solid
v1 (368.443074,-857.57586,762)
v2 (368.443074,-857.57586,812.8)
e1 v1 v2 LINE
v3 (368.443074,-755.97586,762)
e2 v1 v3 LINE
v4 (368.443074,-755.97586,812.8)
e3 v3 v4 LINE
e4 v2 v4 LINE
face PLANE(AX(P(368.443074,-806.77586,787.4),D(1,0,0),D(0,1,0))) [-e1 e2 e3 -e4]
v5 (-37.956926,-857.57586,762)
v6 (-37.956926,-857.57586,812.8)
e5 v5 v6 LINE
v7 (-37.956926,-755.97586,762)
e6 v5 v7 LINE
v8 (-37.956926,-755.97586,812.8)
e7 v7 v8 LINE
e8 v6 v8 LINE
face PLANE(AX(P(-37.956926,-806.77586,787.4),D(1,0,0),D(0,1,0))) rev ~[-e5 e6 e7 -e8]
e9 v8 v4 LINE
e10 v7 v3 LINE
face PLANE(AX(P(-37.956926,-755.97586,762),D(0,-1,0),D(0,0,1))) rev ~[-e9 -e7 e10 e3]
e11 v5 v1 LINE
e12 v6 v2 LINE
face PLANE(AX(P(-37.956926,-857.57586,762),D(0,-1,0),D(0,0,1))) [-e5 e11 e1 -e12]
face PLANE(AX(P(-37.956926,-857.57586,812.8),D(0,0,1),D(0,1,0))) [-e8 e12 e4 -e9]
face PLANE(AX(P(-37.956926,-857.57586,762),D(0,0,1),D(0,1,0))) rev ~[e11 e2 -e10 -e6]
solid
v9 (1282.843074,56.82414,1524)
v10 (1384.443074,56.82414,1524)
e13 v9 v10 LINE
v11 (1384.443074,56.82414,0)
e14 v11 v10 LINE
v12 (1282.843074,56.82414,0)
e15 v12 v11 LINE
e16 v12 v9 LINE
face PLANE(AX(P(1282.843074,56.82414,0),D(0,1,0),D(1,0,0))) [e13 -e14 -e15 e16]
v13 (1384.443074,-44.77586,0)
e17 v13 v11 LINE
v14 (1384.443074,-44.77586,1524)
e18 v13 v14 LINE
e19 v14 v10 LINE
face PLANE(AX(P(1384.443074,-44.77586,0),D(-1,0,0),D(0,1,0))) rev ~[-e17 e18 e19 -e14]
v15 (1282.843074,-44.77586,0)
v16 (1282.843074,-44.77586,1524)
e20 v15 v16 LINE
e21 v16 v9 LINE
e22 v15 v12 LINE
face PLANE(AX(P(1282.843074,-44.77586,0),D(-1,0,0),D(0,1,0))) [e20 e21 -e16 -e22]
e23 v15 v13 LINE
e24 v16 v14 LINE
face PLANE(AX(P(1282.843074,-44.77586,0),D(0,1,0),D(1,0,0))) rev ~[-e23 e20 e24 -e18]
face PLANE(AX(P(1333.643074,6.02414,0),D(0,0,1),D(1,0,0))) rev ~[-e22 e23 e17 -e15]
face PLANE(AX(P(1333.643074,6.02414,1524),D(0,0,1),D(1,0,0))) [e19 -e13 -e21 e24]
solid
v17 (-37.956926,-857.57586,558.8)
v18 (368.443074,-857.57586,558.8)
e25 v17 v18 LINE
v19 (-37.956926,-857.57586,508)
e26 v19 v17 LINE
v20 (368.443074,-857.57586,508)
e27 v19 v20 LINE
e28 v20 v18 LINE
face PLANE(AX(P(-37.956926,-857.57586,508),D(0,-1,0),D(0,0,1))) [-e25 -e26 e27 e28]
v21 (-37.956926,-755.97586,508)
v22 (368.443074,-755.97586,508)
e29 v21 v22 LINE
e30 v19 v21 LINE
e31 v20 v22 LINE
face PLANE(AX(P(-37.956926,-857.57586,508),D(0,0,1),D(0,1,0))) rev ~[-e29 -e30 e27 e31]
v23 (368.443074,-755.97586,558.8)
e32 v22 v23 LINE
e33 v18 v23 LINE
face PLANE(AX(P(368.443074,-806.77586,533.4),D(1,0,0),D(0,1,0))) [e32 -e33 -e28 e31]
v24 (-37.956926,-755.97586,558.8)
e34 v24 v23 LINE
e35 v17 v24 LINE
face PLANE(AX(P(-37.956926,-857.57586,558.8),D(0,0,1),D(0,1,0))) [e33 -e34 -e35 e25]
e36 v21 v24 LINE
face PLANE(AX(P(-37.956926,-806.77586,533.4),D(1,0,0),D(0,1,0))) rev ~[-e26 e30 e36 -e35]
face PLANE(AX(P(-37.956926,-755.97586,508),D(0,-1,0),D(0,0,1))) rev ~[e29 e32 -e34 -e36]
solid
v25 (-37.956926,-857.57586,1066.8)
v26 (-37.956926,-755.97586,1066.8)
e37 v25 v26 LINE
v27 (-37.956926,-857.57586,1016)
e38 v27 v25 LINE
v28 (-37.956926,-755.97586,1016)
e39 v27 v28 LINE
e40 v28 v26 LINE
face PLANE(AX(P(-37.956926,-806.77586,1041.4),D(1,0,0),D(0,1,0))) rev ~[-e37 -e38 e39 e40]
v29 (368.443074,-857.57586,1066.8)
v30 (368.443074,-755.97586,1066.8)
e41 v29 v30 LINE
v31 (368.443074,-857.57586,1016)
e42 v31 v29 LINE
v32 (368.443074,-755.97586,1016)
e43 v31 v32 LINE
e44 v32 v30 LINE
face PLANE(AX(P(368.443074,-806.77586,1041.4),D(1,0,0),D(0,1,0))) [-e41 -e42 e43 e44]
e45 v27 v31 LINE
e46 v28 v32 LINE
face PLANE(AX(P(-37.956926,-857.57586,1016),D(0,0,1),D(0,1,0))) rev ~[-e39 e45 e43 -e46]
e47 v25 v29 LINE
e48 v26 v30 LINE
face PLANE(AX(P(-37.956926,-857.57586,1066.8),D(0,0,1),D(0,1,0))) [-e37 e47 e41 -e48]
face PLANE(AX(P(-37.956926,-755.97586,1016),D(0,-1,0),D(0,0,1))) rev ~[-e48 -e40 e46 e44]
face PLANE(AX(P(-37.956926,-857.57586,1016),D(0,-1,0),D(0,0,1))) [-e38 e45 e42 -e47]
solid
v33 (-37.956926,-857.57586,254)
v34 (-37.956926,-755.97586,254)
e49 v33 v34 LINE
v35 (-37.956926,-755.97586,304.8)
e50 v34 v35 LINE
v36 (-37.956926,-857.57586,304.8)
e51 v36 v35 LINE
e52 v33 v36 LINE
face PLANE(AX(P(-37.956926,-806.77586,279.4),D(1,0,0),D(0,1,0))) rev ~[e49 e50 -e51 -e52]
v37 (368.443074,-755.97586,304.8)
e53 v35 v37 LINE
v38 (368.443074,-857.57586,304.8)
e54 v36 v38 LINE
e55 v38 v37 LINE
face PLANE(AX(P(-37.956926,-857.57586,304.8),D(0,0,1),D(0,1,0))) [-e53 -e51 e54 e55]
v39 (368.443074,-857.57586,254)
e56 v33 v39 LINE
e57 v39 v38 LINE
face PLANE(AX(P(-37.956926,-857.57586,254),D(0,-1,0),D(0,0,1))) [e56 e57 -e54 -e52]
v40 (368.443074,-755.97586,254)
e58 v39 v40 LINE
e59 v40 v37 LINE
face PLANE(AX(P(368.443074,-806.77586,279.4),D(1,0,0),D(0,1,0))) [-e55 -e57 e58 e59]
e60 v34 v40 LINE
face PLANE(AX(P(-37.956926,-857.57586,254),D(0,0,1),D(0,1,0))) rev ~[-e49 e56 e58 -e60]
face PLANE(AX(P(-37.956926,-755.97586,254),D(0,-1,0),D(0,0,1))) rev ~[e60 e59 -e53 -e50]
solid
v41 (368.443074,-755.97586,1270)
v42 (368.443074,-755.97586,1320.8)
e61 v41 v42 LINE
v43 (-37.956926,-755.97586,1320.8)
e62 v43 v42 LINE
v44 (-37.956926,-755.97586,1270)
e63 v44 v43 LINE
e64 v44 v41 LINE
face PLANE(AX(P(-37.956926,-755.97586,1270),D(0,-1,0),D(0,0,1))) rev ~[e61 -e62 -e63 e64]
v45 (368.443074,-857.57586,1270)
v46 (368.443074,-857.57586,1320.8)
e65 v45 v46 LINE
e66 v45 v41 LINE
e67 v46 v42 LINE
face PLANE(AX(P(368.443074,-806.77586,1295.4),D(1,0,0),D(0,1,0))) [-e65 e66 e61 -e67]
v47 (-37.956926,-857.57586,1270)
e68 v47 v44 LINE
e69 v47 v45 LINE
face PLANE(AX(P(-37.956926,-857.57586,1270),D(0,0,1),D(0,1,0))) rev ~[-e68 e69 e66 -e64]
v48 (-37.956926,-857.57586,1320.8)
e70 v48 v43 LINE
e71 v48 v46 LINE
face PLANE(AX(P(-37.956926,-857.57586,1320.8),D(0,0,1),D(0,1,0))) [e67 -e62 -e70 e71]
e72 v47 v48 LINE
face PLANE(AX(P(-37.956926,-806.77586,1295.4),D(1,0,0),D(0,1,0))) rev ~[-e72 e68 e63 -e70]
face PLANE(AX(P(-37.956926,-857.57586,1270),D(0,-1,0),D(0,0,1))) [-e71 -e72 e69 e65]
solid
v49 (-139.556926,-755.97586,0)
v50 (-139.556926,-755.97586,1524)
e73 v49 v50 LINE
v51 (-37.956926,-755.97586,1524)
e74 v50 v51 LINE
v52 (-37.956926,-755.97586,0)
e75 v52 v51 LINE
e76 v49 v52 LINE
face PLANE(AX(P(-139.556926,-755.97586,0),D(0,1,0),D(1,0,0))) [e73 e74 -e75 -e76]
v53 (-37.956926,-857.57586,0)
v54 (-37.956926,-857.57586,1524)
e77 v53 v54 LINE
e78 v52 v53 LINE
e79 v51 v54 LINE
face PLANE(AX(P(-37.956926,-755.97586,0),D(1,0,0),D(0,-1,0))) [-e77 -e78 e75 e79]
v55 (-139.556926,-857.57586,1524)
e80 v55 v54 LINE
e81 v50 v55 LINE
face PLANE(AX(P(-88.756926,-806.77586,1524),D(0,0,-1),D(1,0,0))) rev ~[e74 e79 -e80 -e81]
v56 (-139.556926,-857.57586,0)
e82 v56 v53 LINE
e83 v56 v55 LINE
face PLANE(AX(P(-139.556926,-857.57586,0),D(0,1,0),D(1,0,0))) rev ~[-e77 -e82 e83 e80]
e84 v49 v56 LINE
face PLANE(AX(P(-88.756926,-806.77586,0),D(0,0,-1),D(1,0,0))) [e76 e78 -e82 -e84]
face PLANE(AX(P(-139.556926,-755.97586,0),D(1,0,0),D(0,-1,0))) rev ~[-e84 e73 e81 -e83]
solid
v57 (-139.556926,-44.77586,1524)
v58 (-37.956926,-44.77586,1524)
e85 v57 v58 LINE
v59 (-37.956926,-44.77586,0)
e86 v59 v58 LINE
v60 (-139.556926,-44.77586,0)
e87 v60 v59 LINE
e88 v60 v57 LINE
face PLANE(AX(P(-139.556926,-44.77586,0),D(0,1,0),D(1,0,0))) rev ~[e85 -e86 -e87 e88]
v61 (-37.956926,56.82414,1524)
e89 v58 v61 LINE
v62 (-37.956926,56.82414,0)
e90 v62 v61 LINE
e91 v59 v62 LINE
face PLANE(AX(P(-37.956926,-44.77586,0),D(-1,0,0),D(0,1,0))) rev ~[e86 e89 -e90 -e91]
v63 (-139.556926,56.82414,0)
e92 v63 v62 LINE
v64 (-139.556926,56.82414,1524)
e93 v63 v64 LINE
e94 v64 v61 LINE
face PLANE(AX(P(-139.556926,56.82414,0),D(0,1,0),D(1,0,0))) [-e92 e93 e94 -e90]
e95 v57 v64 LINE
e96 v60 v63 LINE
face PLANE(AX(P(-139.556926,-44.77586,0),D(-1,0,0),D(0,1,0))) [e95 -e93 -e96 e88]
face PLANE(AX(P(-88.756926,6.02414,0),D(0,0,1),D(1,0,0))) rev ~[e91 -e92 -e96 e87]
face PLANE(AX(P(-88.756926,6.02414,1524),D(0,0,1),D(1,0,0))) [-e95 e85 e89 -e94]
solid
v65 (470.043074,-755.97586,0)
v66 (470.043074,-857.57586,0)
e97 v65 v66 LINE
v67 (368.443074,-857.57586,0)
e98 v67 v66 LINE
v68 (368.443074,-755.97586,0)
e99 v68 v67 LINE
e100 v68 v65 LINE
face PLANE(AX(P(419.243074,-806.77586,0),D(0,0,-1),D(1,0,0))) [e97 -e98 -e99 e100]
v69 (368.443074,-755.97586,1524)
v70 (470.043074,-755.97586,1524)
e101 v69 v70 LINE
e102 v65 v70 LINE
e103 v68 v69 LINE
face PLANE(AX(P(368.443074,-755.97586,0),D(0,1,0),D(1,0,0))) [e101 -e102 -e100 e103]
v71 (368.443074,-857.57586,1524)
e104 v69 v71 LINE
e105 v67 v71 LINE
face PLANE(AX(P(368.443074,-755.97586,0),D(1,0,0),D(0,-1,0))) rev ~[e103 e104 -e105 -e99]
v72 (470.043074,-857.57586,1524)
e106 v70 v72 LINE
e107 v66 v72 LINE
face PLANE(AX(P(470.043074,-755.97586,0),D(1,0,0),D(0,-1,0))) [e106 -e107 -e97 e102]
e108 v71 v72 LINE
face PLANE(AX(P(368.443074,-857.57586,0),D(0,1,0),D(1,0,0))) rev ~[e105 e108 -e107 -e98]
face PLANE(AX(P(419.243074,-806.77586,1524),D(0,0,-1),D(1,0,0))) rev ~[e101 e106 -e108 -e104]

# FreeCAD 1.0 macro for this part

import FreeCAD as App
import Part
import Sketcher

V = App.Vector
Q = App.Units.Quantity


def add_polygon(sketch, points):
    """Adds a closed chain of lines whose ends are joined by coincident constraints."""
    first, n = sketch.GeometryCount, len(points)
    for a, b in zip(points, points[1:] + points[:1]):
        sketch.addGeometry(Part.LineSegment(App.Vector(*a, 0), App.Vector(*b, 0)), False)
    for i in range(n):
        sketch.addConstraint(Sketcher.Constraint("Coincident", first + i, 2, first + (i + 1) % n, 1))

doc = App.newDocument("Part")
body = doc.addObject("PartDesign::Body", "Body")

# Sketch on XY plane
sketch1 = body.newObject("Sketcher::SketchObject", "Sketch")
sketch1.AttachmentSupport = (doc.getObject("XY_Plane"), [""])
sketch1.MapMode = "FlatFace"
add_polygon(sketch1, [(-139.556926, 56.82414), (-139.556926, -44.77586), (-37.956926, -44.77586), (-37.956926, 56.82414)])  # lines 0-3
sketch1.addConstraint([
    Sketcher.Constraint("Vertical", 0),
    Sketcher.Constraint("Horizontal", 1),
    Sketcher.Constraint("Vertical", 2),
    Sketcher.Constraint("Horizontal", 3),
    Sketcher.Constraint("Equal", 3, 0),
    Sketcher.Constraint("DistanceX", 1, 1, 1, 2, Q("4 in")),
    Sketcher.Constraint("DistanceY", 0, 2, -1, 1, Q("44.77586 mm")),
    Sketcher.Constraint("DistanceX", 0, 2, -1, 1, Q("139.556926 mm")),
])
pad1 = body.newObject("PartDesign::Pad", "Pad")
pad1.Profile = sketch1
pad1.Length = Q("60 in")
body2 = doc.addObject("PartDesign::Body", "Body001")

# Sketch on XY plane
sketch2 = body2.newObject("Sketcher::SketchObject", "Sketch001")
sketch2.AttachmentSupport = (doc.getObject("XY_Plane001"), [""])
sketch2.MapMode = "FlatFace"
add_polygon(sketch2, [(-139.556926, -857.57586), (-139.556926, -755.97586), (-37.956926, -755.97586), (-37.956926, -857.57586)])  # lines 0-3
sketch2.addConstraint([
    Sketcher.Constraint("Vertical", 0),
    Sketcher.Constraint("Horizontal", 1),
    Sketcher.Constraint("Vertical", 2),
    Sketcher.Constraint("Horizontal", 3),
    Sketcher.Constraint("Equal", 3, 0),
    Sketcher.Constraint("DistanceX", 1, 1, 1, 2, Q("4 in")),
    Sketcher.Constraint("DistanceY", 0, 2, -1, 1, Q("755.97586 mm")),
    Sketcher.Constraint("DistanceX", 0, 2, -1, 1, Q("139.556926 mm")),
])
pad2 = body2.newObject("PartDesign::Pad", "Pad001")
pad2.Profile = sketch2
pad2.Length = Q("60 in")
body3 = doc.addObject("PartDesign::Body", "Body002")

# Sketch on XY plane
sketch3 = body3.newObject("Sketcher::SketchObject", "Sketch002")
sketch3.AttachmentSupport = (doc.getObject("XY_Plane002"), [""])
sketch3.MapMode = "FlatFace"
add_polygon(sketch3, [(368.443074, -857.57586), (368.443074, -755.97586), (470.043074, -755.97586), (470.043074, -857.57586)])  # lines 0-3
sketch3.addConstraint([
    Sketcher.Constraint("Vertical", 0),
    Sketcher.Constraint("Horizontal", 1),
    Sketcher.Constraint("Vertical", 2),
    Sketcher.Constraint("Horizontal", 3),
    Sketcher.Constraint("Equal", 3, 0),
    Sketcher.Constraint("DistanceX", 1, 1, 1, 2, Q("4 in")),
    Sketcher.Constraint("DistanceY", 0, 2, -1, 1, Q("755.97586 mm")),
    Sketcher.Constraint("DistanceX", -1, 1, 0, 2, Q("368.443074 mm")),
])
pad3 = body3.newObject("PartDesign::Pad", "Pad002")
pad3.Profile = sketch3
pad3.Length = Q("60 in")
body4 = doc.addObject("PartDesign::Body", "Body003")
body4.AllowCompound = True

# Sketch on YZ plane
sketch4 = body4.newObject("Sketcher::SketchObject", "Sketch003")
sketch4.AttachmentSupport = (doc.getObject("YZ_Plane003"), [""])
sketch4.MapMode = "FlatFace"
sketch4.AttachmentOffset = App.Placement(V(0, 0, -37.956926), App.Rotation())
add_polygon(sketch4, [(-857.57586, 304.8), (-857.57586, 254), (-755.97586, 254), (-755.97586, 304.8)])  # lines 0-3
add_polygon(sketch4, [(-857.57586, 558.8), (-857.57586, 508), (-755.97586, 508), (-755.97586, 558.8)])  # lines 4-7
add_polygon(sketch4, [(-857.57586, 812.8), (-857.57586, 762), (-755.97586, 762), (-755.97586, 812.8)])  # lines 8-11
add_polygon(sketch4, [(-857.57586, 1066.8), (-857.57586, 1016), (-755.97586, 1016), (-755.97586, 1066.8)])  # lines 12-15
add_polygon(sketch4, [(-857.57586, 1320.8), (-857.57586, 1270), (-755.97586, 1270), (-755.97586, 1320.8)])  # lines 16-19
sketch4.addConstraint([
    Sketcher.Constraint("Vertical", 0),
    Sketcher.Constraint("Horizontal", 1),
    Sketcher.Constraint("Vertical", 2),
    Sketcher.Constraint("Horizontal", 3),
    Sketcher.Constraint("Vertical", 4),
    Sketcher.Constraint("Horizontal", 5),
    Sketcher.Constraint("Vertical", 6),
    Sketcher.Constraint("Horizontal", 7),
    Sketcher.Constraint("Vertical", 8),
    Sketcher.Constraint("Horizontal", 9),
    Sketcher.Constraint("Vertical", 10),
    Sketcher.Constraint("Horizontal", 11),
    Sketcher.Constraint("Vertical", 12),
    Sketcher.Constraint("Horizontal", 13),
    Sketcher.Constraint("Vertical", 14),
    Sketcher.Constraint("Horizontal", 15),
    Sketcher.Constraint("Vertical", 16),
    Sketcher.Constraint("Horizontal", 17),
    Sketcher.Constraint("Vertical", 18),
    Sketcher.Constraint("Horizontal", 19),
    Sketcher.Constraint("Vertical", 3, 2, 4, 2),
    Sketcher.Constraint("Vertical", 2, 2, 5, 2),
    Sketcher.Constraint("Vertical", 7, 2, 8, 2),
    Sketcher.Constraint("Vertical", 6, 2, 9, 2),
    Sketcher.Constraint("Vertical", 11, 2, 12, 2),
    Sketcher.Constraint("Vertical", 10, 2, 13, 2),
    Sketcher.Constraint("Vertical", 15, 2, 16, 2),
    Sketcher.Constraint("Vertical", 14, 2, 17, 2),
    Sketcher.Constraint("Equal", 2, 4),
    Sketcher.Constraint("Equal", 6, 8),
    Sketcher.Constraint("Equal", 10, 12),
    Sketcher.Constraint("Equal", 14, 16),
    Sketcher.Constraint("DistanceX", 1, 1, 1, 2, Q("4 in")),
    Sketcher.Constraint("DistanceY", 0, 2, 0, 1, Q("2 in")),
    Sketcher.Constraint("DistanceY", -1, 1, 0, 2, Q("10 in")),
    Sketcher.Constraint("DistanceY", -1, 1, 4, 2, Q("20 in")),
    Sketcher.Constraint("DistanceY", -1, 1, 8, 2, Q("30 in")),
    Sketcher.Constraint("DistanceY", -1, 1, 12, 2, Q("40 in")),
    Sketcher.Constraint("DistanceY", -1, 1, 16, 2, Q("50 in")),
    Sketcher.Constraint("DistanceX", 0, 2, -1, 1, Q("857.57586 mm")),
])
pad4 = body4.newObject("PartDesign::Pad", "Pad003")
pad4.Profile = sketch4
pad4.Length = Q("16 in")
body5 = doc.addObject("PartDesign::Body", "Body004")

# Sketch on XY plane
sketch5 = body5.newObject("Sketcher::SketchObject", "Sketch004")
sketch5.AttachmentSupport = (doc.getObject("XY_Plane004"), [""])
sketch5.MapMode = "FlatFace"
add_polygon(sketch5, [(1282.843074, 56.82414), (1282.843074, -44.77586), (1384.443074, -44.77586), (1384.443074, 56.82414)])  # lines 0-3
sketch5.addConstraint([
    Sketcher.Constraint("Vertical", 0),
    Sketcher.Constraint("Horizontal", 1),
    Sketcher.Constraint("Vertical", 2),
    Sketcher.Constraint("Horizontal", 3),
    Sketcher.Constraint("Equal", 3, 0),
    Sketcher.Constraint("DistanceX", 1, 1, 1, 2, Q("4 in")),
    Sketcher.Constraint("DistanceY", 0, 2, -1, 1, Q("44.77586 mm")),
    Sketcher.Constraint("DistanceX", -1, 1, 0, 2, Q("1282.843074 mm")),
])
pad5 = body5.newObject("PartDesign::Pad", "Pad004")
pad5.Profile = sketch5
pad5.Length = Q("60 in")

doc.recompute()
